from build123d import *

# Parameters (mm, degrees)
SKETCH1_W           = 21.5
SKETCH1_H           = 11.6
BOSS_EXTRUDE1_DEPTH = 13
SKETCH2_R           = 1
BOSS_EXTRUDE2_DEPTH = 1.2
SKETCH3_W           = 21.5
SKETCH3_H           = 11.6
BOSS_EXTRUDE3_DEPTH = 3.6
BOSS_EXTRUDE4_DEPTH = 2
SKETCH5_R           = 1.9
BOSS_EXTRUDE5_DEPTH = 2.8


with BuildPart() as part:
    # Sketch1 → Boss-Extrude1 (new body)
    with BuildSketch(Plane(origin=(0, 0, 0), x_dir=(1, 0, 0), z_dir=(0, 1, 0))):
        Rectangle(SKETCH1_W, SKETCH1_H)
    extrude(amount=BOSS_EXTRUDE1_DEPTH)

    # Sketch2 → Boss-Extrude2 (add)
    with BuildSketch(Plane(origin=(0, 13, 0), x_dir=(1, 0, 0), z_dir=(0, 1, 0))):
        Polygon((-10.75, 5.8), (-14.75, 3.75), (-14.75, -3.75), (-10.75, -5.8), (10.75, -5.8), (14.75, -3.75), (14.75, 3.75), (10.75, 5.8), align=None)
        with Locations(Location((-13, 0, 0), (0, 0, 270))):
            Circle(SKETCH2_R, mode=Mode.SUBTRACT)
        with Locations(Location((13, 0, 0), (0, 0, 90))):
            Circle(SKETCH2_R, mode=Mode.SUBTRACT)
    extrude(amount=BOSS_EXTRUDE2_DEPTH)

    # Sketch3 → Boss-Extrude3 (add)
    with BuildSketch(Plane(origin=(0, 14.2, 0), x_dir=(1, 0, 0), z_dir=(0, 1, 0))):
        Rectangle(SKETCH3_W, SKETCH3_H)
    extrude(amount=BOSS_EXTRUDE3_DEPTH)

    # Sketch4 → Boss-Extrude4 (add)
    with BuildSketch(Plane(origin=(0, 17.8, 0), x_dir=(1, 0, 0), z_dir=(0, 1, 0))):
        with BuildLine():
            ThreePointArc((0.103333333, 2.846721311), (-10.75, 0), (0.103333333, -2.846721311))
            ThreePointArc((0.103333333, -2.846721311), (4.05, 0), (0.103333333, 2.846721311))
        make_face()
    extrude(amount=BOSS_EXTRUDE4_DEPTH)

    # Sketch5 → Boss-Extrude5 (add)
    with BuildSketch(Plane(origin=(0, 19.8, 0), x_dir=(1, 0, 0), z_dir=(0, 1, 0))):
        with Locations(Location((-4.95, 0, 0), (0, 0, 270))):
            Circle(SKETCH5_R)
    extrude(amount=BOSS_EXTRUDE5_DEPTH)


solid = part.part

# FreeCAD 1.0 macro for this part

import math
import FreeCAD as App
import Part
import Sketcher

doc = App.newDocument("Part")
body = doc.addObject("PartDesign::Body", "Body")

# Sketch on XZ plane
sketch1 = body.newObject("Sketcher::SketchObject", "Sketch")
sketch1.AttachmentSupport = (doc.getObject("XZ_Plane"), [""])
sketch1.MapMode = "FlatFace"
sketch1.addGeometry([
    Part.LineSegment(App.Vector(-11, -6, 0), App.Vector(-11, 6, 0)),
    Part.LineSegment(App.Vector(-11, 6, 0), App.Vector(11, 6, 0)),
    Part.LineSegment(App.Vector(11, 6, 0), App.Vector(11, -6, 0)),
    Part.LineSegment(App.Vector(11, -6, 0), App.Vector(-11, -6, 0)),
], False)
sketch1.addConstraint([
    Sketcher.Constraint("Coincident", 0, 2, 1, 1),
    Sketcher.Constraint("Coincident", 1, 2, 2, 1),
    Sketcher.Constraint("Coincident", 2, 2, 3, 1),
    Sketcher.Constraint("Coincident", 3, 2, 0, 1),
    Sketcher.Constraint("Vertical", 0),
    Sketcher.Constraint("Horizontal", 1),
    Sketcher.Constraint("Vertical", 2),
    Sketcher.Constraint("Horizontal", 3),
    Sketcher.Constraint("Symmetric", 0, 2, 2, 2, -1, 1),
    Sketcher.Constraint("DistanceX", 1, 1, 1, 2, 21.5),
    Sketcher.Constraint("DistanceY", 0, 1, 0, 2, 11.6),
])
pad1 = body.newObject("PartDesign::Pad", "Pad")
pad1.Profile = sketch1
pad1.Length = 13
pad1.Reversed = True

# Sketch on XZ plane
sketch2 = body.newObject("Sketcher::SketchObject", "Sketch001")
sketch2.AttachmentSupport = (doc.getObject("XZ_Plane"), [""])
sketch2.MapMode = "FlatFace"
sketch2.AttachmentOffset = App.Placement(App.Vector(0, 0, -13), App.Rotation())
sketch2.addGeometry([
    Part.LineSegment(App.Vector(-10.8, -5.8, 0), App.Vector(-14.8, -3.8, 0)),  # 0
    Part.LineSegment(App.Vector(-14.8, -3.8, 0), App.Vector(-14.8, 3.8, 0)),  # 1
    Part.LineSegment(App.Vector(-14.8, 3.8, 0), App.Vector(-10.8, 5.8, 0)),  # 2
    Part.LineSegment(App.Vector(-10.8, 5.8, 0), App.Vector(10.8, 5.8, 0)),  # 3
    Part.LineSegment(App.Vector(10.8, 5.8, 0), App.Vector(14.8, 3.8, 0)),  # 4
    Part.LineSegment(App.Vector(14.8, 3.8, 0), App.Vector(14.8, -3.8, 0)),  # 5
    Part.LineSegment(App.Vector(14.8, -3.8, 0), App.Vector(10.8, -5.8, 0)),  # 6
    Part.LineSegment(App.Vector(10.8, -5.8, 0), App.Vector(-10.8, -5.8, 0)),  # 7
    Part.Circle(App.Vector(-13, 0, 0), App.Vector(0, 0, 1), 1),  # 8
    Part.Circle(App.Vector(13, 0, 0), App.Vector(0, 0, 1), 1),  # 9
], False)
sketch2.addConstraint([
    Sketcher.Constraint("Coincident", 0, 2, 1, 1),
    Sketcher.Constraint("Coincident", 1, 2, 2, 1),
    Sketcher.Constraint("Coincident", 2, 2, 3, 1),
    Sketcher.Constraint("Coincident", 3, 2, 4, 1),
    Sketcher.Constraint("Coincident", 4, 2, 5, 1),
    Sketcher.Constraint("Coincident", 5, 2, 6, 1),
    Sketcher.Constraint("Coincident", 6, 2, 7, 1),
    Sketcher.Constraint("Coincident", 7, 2, 0, 1),
    Sketcher.Constraint("Vertical", 1),
    Sketcher.Constraint("Horizontal", 3),
    Sketcher.Constraint("Vertical", 5),
    Sketcher.Constraint("Horizontal", 7),
    Sketcher.Constraint("Equal", 8, 9),
    Sketcher.Constraint("Symmetric", 8, 3, 9, 3, -1, 1),
    Sketcher.Constraint("Symmetric", 0, 2, 4, 2, -1, 1),
    Sketcher.Constraint("Symmetric", 2, 2, 6, 2, -1, 1),
    Sketcher.Constraint("PointOnObject", 8, 3, -1),
    Sketcher.Constraint("Parallel", 0, 4),
    Sketcher.Constraint("Parallel", 2, 6),
    Sketcher.Constraint("Horizontal", 1, 2, 4, 2),
    Sketcher.Constraint("Vertical", 3, 2, 6, 2),
    Sketcher.Constraint("Diameter", 8, 2.0),
    Sketcher.Constraint("DistanceX", 3, 1, 3, 2, 21.5),
    Sketcher.Constraint("DistanceY", 1, 1, 1, 2, 7.5),
    Sketcher.Constraint("DistanceX", 8, 3, -1, 1, 13.0),
    Sketcher.Constraint("DistanceX", 1, 2, 2, 2, 4.0),
    Sketcher.Constraint("DistanceY", -1, 1, 2, 2, 5.8),
])
pad2 = body.newObject("PartDesign::Pad", "Pad001")
pad2.Profile = sketch2
pad2.Length = 1.2
pad2.Reversed = True

# Sketch on XZ plane
sketch3 = body.newObject("Sketcher::SketchObject", "Sketch002")
sketch3.AttachmentSupport = (doc.getObject("XZ_Plane"), [""])
sketch3.MapMode = "FlatFace"
sketch3.AttachmentOffset = App.Placement(App.Vector(0, 0, -14.2), App.Rotation())
sketch3.addGeometry([
    Part.LineSegment(App.Vector(-11, -6, 0), App.Vector(-11, 6, 0)),
    Part.LineSegment(App.Vector(-11, 6, 0), App.Vector(11, 6, 0)),
    Part.LineSegment(App.Vector(11, 6, 0), App.Vector(11, -6, 0)),
    Part.LineSegment(App.Vector(11, -6, 0), App.Vector(-11, -6, 0)),
], False)
sketch3.addConstraint([
    Sketcher.Constraint("Coincident", 0, 2, 1, 1),
    Sketcher.Constraint("Coincident", 1, 2, 2, 1),
    Sketcher.Constraint("Coincident", 2, 2, 3, 1),
    Sketcher.Constraint("Coincident", 3, 2, 0, 1),
    Sketcher.Constraint("Vertical", 0),
    Sketcher.Constraint("Horizontal", 1),
    Sketcher.Constraint("Vertical", 2),
    Sketcher.Constraint("Horizontal", 3),
    Sketcher.Constraint("Symmetric", 0, 2, 2, 2, -1, 1),
    Sketcher.Constraint("DistanceX", 1, 1, 1, 2, 21.5),
    Sketcher.Constraint("DistanceY", 0, 1, 0, 2, 11.6),
])
pad3 = body.newObject("PartDesign::Pad", "Pad002")
pad3.Profile = sketch3
pad3.Length = 3.6
pad3.Reversed = True

# Sketch on XZ plane
sketch4 = body.newObject("Sketcher::SketchObject", "Sketch003")
sketch4.AttachmentSupport = (doc.getObject("XZ_Plane"), [""])
sketch4.MapMode = "FlatFace"
sketch4.AttachmentOffset = App.Placement(App.Vector(0, 0, -17.8), App.Rotation())
sketch4.addGeometry([
    Part.ArcOfCircle(Part.Circle(App.Vector(-5, 0, 0), App.Vector(0, 0, 1), 5.8), math.radians(29), math.radians(331)),
    Part.ArcOfCircle(Part.Circle(App.Vector(1.1, 0, 0), App.Vector(0, 0, 1), 3), math.radians(-108), math.radians(108)),
], False)
sketch4.addConstraint([
    Sketcher.Constraint("Coincident", 0, 1, 1, 2),
    Sketcher.Constraint("Coincident", 1, 1, 0, 2),
    Sketcher.Constraint("Symmetric", 0, 1, 1, 1, -1),
    Sketcher.Constraint("Radius", 1, 3.0),
    Sketcher.Constraint("Radius", 0, 5.8),
    Sketcher.Constraint("DistanceX", 0, 3, 1, 3, 6.0),
    Sketcher.Constraint("DistanceX", 0, 3, -1, 1, 4.95),
])
pad4 = body.newObject("PartDesign::Pad", "Pad003")
pad4.Profile = sketch4
pad4.Length = 2
pad4.Reversed = True

# Sketch on XZ plane
sketch5 = body.newObject("Sketcher::SketchObject", "Sketch004")
sketch5.AttachmentSupport = (doc.getObject("XZ_Plane"), [""])
sketch5.MapMode = "FlatFace"
sketch5.AttachmentOffset = App.Placement(App.Vector(0, 0, -19.8), App.Rotation())
sketch5.addGeometry(Part.Circle(App.Vector(-5, 0, 0), App.Vector(0, 0, 1), 1.9), False)
sketch5.addConstraint([
    Sketcher.Constraint("PointOnObject", 0, 3, -1),
    Sketcher.Constraint("Diameter", 0, 3.8),
    Sketcher.Constraint("DistanceX", 0, 3, -1, 1, 4.95),
])
pad5 = body.newObject("PartDesign::Pad", "Pad004")
pad5.Profile = sketch5
pad5.Length = 2.8
pad5.Reversed = True

doc.recompute()
